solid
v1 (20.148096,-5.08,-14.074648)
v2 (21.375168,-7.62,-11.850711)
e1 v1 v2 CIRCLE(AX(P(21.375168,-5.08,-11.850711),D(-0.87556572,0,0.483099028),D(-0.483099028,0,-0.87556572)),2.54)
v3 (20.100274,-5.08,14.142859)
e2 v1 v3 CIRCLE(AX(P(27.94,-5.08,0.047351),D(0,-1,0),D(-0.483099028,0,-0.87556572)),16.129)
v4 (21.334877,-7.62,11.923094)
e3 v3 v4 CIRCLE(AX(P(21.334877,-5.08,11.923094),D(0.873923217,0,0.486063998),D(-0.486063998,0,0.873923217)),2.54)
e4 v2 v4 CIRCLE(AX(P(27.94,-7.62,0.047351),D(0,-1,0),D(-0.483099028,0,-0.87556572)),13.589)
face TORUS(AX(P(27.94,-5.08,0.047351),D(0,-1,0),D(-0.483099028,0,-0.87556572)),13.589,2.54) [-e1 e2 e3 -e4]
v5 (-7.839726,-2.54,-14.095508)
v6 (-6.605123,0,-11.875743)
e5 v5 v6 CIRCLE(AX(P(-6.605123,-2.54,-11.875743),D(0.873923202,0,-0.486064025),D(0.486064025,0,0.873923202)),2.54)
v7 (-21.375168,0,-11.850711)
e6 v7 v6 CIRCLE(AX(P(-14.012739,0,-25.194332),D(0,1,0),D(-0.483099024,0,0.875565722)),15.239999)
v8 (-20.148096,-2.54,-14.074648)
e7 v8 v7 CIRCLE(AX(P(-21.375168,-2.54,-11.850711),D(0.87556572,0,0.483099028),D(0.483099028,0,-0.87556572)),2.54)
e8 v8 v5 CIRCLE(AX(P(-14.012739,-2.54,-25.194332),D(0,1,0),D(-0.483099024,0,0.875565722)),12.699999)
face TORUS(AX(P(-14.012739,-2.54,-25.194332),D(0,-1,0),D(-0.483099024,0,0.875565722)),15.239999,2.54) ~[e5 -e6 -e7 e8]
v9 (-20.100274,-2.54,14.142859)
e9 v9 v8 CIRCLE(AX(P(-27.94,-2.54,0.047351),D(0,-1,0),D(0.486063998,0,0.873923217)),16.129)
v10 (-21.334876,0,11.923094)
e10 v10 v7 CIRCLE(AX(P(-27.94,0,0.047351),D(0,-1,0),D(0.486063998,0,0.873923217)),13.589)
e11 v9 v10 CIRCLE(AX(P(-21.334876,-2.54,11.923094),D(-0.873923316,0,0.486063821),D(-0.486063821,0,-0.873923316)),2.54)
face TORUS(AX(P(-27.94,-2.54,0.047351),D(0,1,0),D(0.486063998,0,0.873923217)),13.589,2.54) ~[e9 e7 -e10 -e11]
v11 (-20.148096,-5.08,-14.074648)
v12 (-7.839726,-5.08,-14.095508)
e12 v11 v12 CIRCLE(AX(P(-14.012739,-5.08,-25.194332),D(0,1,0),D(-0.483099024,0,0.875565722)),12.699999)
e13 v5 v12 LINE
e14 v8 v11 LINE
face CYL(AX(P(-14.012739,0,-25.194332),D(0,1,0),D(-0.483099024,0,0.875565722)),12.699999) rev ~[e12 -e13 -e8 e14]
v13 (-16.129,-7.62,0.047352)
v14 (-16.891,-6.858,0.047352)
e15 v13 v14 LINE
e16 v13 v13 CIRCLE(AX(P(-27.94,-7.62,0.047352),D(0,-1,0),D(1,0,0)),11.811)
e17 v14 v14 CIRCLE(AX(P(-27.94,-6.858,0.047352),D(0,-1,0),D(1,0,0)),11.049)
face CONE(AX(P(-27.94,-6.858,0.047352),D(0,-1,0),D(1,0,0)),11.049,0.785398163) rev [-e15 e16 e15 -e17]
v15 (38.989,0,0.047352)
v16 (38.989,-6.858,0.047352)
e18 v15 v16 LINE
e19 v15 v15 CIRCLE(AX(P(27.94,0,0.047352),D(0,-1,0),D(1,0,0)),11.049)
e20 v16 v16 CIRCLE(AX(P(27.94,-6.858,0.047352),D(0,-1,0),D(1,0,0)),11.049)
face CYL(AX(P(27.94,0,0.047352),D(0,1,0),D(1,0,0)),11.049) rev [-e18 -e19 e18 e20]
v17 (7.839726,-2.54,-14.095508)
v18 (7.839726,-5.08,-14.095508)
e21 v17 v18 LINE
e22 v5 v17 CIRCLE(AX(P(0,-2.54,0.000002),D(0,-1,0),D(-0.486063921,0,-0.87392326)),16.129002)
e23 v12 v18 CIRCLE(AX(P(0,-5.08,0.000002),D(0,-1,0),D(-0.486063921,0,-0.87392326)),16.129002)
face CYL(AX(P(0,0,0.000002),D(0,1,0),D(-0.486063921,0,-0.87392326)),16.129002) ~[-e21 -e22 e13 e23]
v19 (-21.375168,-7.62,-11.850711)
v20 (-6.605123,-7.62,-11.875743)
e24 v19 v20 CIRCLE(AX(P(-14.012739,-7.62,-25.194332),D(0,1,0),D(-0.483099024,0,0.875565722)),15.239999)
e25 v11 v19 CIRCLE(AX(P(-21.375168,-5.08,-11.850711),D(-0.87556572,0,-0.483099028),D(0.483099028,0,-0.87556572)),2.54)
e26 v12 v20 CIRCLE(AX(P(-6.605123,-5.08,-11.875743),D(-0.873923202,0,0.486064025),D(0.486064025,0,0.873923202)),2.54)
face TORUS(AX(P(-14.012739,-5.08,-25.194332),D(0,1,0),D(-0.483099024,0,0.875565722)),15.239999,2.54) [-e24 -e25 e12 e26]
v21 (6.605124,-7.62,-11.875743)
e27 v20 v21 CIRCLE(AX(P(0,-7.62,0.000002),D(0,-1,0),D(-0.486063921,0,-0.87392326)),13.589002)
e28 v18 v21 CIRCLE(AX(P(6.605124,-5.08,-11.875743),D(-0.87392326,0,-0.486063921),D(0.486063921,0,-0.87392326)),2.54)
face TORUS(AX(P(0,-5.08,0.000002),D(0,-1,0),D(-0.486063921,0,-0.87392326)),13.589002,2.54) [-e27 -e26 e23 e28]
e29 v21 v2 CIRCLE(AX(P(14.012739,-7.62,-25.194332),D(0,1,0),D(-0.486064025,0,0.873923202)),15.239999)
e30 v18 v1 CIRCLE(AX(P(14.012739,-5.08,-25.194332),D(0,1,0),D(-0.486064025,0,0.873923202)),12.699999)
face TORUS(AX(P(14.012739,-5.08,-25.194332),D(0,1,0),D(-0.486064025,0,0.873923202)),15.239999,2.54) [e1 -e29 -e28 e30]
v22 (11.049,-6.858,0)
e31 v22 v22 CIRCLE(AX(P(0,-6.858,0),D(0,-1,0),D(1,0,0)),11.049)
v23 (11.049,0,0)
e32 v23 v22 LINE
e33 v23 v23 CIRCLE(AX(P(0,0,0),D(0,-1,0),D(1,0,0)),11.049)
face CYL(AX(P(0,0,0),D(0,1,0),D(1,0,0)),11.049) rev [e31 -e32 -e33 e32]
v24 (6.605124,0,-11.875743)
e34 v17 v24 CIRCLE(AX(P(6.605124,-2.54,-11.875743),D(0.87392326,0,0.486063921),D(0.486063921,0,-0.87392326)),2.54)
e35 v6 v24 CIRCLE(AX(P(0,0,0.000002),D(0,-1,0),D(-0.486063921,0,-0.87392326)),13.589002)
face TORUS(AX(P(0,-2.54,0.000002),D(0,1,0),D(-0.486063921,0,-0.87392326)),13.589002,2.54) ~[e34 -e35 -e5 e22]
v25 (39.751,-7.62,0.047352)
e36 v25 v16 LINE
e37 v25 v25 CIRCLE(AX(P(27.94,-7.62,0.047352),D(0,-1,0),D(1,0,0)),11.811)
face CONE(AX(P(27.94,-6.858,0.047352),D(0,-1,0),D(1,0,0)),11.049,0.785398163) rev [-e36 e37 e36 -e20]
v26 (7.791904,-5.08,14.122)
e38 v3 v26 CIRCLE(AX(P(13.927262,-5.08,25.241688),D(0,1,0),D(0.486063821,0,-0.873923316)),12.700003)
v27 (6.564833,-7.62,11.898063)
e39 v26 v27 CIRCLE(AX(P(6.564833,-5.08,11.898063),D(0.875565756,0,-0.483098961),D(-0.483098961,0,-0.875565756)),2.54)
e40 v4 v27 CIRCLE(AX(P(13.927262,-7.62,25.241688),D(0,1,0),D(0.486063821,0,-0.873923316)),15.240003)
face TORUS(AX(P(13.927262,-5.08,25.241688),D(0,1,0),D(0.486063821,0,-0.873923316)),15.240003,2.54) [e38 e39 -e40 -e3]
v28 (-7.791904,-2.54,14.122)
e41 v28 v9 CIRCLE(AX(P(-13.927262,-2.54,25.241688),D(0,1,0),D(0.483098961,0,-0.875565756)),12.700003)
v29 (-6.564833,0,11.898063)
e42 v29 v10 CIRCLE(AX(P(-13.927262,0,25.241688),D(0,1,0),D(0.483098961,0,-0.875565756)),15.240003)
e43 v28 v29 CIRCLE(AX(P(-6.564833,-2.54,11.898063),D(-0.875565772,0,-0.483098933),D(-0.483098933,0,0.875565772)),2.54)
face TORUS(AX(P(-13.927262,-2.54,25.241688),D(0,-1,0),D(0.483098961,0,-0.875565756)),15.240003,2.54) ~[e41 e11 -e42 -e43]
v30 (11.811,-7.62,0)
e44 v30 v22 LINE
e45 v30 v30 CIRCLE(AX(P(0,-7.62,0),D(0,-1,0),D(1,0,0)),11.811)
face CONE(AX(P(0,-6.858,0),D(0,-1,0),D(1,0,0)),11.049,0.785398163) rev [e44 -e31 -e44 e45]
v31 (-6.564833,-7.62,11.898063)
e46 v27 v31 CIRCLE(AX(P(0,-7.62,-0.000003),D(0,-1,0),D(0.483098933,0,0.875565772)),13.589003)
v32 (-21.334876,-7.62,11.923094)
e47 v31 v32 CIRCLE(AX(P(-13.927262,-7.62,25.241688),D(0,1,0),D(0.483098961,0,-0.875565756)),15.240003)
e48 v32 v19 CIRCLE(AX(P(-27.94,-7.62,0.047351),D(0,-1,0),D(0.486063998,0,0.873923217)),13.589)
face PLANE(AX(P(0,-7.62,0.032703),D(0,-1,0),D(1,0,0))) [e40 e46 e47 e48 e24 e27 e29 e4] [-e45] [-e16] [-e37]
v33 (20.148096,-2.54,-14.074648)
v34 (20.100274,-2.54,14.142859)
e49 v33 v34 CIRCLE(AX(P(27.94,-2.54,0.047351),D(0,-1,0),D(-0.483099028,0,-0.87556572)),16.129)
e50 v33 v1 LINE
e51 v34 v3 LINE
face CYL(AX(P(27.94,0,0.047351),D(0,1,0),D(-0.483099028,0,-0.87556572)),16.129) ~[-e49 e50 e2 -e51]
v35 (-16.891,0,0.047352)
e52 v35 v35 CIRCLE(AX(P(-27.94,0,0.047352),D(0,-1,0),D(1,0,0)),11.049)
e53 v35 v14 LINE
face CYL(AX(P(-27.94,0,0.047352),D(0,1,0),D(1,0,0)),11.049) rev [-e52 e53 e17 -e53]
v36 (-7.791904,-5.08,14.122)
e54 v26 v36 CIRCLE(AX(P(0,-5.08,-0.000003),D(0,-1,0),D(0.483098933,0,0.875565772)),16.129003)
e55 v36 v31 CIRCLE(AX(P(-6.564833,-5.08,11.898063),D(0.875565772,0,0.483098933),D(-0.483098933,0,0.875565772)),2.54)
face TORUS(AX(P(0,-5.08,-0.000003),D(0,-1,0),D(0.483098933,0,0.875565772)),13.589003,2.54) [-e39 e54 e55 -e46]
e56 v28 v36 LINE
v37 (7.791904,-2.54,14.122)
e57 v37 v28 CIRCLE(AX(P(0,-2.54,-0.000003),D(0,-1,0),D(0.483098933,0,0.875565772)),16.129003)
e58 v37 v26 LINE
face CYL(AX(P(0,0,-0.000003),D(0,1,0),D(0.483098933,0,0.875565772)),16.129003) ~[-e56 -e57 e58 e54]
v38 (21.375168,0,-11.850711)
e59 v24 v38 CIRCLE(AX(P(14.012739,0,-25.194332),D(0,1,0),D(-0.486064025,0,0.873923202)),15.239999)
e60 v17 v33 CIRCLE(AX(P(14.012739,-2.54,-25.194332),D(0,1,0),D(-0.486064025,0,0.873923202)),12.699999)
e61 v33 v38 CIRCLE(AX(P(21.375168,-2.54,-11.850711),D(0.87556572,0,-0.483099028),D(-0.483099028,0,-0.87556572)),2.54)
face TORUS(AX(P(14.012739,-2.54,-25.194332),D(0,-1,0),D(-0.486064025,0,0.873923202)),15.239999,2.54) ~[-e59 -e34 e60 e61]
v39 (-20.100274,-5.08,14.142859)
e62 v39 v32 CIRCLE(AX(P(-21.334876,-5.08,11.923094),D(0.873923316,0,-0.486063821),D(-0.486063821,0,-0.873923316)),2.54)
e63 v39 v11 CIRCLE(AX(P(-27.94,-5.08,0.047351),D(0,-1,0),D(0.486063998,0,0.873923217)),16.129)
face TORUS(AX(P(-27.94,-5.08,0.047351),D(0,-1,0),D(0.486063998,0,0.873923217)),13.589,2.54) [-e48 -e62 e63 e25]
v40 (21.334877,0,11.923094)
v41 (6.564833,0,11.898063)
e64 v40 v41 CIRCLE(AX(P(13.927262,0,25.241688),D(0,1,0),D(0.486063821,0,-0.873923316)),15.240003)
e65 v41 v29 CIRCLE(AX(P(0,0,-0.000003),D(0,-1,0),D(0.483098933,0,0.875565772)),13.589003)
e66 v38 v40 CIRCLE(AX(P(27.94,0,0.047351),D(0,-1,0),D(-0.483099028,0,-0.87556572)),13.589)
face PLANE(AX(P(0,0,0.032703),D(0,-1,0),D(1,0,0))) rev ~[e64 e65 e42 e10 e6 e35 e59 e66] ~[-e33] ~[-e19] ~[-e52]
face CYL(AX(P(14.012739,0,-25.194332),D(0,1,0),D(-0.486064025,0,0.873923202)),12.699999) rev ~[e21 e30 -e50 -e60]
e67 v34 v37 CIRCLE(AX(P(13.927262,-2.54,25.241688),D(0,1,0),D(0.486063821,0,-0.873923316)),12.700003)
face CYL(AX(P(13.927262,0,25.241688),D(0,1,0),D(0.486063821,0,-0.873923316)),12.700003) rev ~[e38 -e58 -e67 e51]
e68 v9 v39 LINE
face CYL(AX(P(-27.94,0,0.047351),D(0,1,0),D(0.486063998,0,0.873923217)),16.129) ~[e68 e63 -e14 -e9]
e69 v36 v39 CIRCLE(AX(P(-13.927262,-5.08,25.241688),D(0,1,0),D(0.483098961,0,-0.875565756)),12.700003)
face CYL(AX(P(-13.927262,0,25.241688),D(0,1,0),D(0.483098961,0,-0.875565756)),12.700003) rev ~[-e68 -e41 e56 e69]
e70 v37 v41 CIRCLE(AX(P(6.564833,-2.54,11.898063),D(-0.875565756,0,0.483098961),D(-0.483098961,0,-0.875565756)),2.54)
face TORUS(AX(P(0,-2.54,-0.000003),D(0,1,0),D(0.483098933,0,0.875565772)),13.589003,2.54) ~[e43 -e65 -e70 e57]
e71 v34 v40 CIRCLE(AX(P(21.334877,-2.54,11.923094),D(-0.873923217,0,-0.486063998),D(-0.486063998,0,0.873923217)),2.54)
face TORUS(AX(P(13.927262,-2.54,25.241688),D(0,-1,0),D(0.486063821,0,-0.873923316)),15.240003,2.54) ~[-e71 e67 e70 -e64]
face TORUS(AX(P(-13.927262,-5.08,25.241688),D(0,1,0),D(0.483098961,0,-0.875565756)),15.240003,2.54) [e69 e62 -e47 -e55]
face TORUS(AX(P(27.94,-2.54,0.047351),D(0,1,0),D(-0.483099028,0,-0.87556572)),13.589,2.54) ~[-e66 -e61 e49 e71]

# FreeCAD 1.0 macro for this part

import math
import FreeCAD as App
import Part
import Sketcher

V = App.Vector
Q = App.Units.Quantity


def edges_at(feature, points):
    """Names of the edges that pass closest to the given points."""
    edges = feature.Shape.Edges
    near = lambda p: min(range(len(edges)), key=lambda i: edges[i].distToShape(Part.Vertex(*p))[0])
    return sorted({f"Edge{near(p) + 1}" for p in points})

doc = App.newDocument("Part")
body = doc.addObject("PartDesign::Body", "Body")

sketch1 = body.newObject("Sketcher::SketchObject", "Sketch")
sketch1.AttachmentSupport = (doc.getObject("XZ_Plane"), [""])
sketch1.MapMode = "FlatFace"
sketch1.addGeometry(Part.ArcOfCircle(Part.Circle(V(-14.012739, -25.194332, 0), V(0, 0, 1), 12.699999), math.radians(60.917792), math.radians(118.888001)), False)
sketch1.addGeometry(Part.ArcOfCircle(Part.Circle(V(0, 0.000002, 0), V(0, 0, 1), 16.129002), math.radians(-119.082201), math.radians(-60.917799)), False)
sketch1.addGeometry(Part.ArcOfCircle(Part.Circle(V(14.012739, -25.194332, 0), V(0, 0, 1), 12.699999), math.radians(61.111999), math.radians(119.082208)), False)
sketch1.addGeometry(Part.ArcOfCircle(Part.Circle(V(27.94, 0.047351, 0), V(0, 0, 1), 16.129), math.radians(-118.888001), math.radians(119.082206)), False)
sketch1.addGeometry(Part.ArcOfCircle(Part.Circle(V(13.927262, 25.241688, 0), V(0, 0, 1), 12.700003), math.radians(-118.887996), math.radians(-60.917805)), False)
sketch1.addGeometry(Part.ArcOfCircle(Part.Circle(V(0, -0.000003, 0), V(0, 0, 1), 16.129003), math.radians(61.112005), math.radians(118.887995)), False)
sketch1.addGeometry(Part.ArcOfCircle(Part.Circle(V(-13.927262, 25.241688, 0), V(0, 0, 1), 12.700003), math.radians(-119.082195), math.radians(-61.112004)), False)
sketch1.addGeometry(Part.ArcOfCircle(Part.Circle(V(-27.94, 0.047351, 0), V(0, 0, 1), 16.129), math.radians(60.917794), math.radians(298.888001)), False)
sketch1.addGeometry(Part.Circle(V(0, 0, 0), V(0, 0, 1), 11.049), False)
sketch1.addGeometry(Part.Circle(V(-27.94, 0.047352, 0), V(0, 0, 1), 11.049), False)
sketch1.addGeometry(Part.Circle(V(27.94, 0.047352, 0), V(0, 0, 1), 11.049), False)
sketch1.addConstraint(Sketcher.Constraint("Tangent", 0, 1, 1, 1))
sketch1.addConstraint(Sketcher.Constraint("Tangent", 1, 2, 2, 2))
sketch1.addConstraint(Sketcher.Constraint("Tangent", 2, 1, 3, 1))
sketch1.addConstraint(Sketcher.Constraint("Tangent", 3, 2, 4, 2))
sketch1.addConstraint(Sketcher.Constraint("Tangent", 4, 1, 5, 1))
sketch1.addConstraint(Sketcher.Constraint("Tangent", 5, 2, 6, 2))
sketch1.addConstraint(Sketcher.Constraint("Tangent", 6, 1, 7, 1))
sketch1.addConstraint(Sketcher.Constraint("Tangent", 7, 2, 0, 2))
sketch1.addConstraint(Sketcher.Constraint("Coincident", 1, 3, -1, 1))
sketch1.addConstraint(Sketcher.Constraint("Coincident", 5, 3, -1, 1))
sketch1.addConstraint(Sketcher.Constraint("Coincident", 8, 3, -1, 1))
sketch1.addConstraint(Sketcher.Constraint("Coincident", 9, 3, 7, 3))
sketch1.addConstraint(Sketcher.Constraint("Coincident", 10, 3, 3, 3))
sketch1.addConstraint(Sketcher.Constraint("Equal", 0, 2))
sketch1.addConstraint(Sketcher.Constraint("Equal", 1, 5))
sketch1.addConstraint(Sketcher.Constraint("Equal", 4, 6))
sketch1.addConstraint(Sketcher.Constraint("Equal", 3, 7))
sketch1.addConstraint(Sketcher.Constraint("Equal", 8, 9))
sketch1.addConstraint(Sketcher.Constraint("Equal", 9, 10))
sketch1.addConstraint(Sketcher.Constraint("Symmetric", 3, 3, 7, 3, -2))
sketch1.addConstraint(Sketcher.Constraint("Radius", 0, Q("0.5 in")))
sketch1.addConstraint(Sketcher.Constraint("Radius", 4, Q("0.5000001 in")))
sketch1.addConstraint(Sketcher.Constraint("Diameter", 8, Q("0.87 in")))
sketch1.addConstraint(Sketcher.Constraint("Radius", 1, Q("0.6350001 in")))
sketch1.addConstraint(Sketcher.Constraint("Radius", 3, Q("0.635 in")))
sketch1.addConstraint(Sketcher.Constraint("DistanceX", -1, 1, 3, 3, Q("1.1 in")))
sketch1.addConstraint(Sketcher.Constraint("DistanceY", -1, 1, 4, 1, 14.122))
pad1 = body.newObject("PartDesign::Pad", "Pad")
pad1.Profile = sketch1
pad1.Length = Q("0.3 in")
doc.recompute()

fillet = body.newObject("PartDesign::Fillet", "Fillet")
fillet.Base = (pad1, edges_at(pad1, [(44.069, -7.62, 0.075), (44.069, 0, 0.075)]))
fillet.Radius = Q("0.1 in")
doc.recompute()

chamfer = body.newObject("PartDesign::Chamfer", "Chamfer")
chamfer.Base = (fillet, edges_at(fillet, [(-38.989, -7.62, 0.047), (-11.049, -7.62, 0), (16.891, -7.62, 0.047)]))
chamfer.Size = Q("0.03 in")

doc.recompute()
